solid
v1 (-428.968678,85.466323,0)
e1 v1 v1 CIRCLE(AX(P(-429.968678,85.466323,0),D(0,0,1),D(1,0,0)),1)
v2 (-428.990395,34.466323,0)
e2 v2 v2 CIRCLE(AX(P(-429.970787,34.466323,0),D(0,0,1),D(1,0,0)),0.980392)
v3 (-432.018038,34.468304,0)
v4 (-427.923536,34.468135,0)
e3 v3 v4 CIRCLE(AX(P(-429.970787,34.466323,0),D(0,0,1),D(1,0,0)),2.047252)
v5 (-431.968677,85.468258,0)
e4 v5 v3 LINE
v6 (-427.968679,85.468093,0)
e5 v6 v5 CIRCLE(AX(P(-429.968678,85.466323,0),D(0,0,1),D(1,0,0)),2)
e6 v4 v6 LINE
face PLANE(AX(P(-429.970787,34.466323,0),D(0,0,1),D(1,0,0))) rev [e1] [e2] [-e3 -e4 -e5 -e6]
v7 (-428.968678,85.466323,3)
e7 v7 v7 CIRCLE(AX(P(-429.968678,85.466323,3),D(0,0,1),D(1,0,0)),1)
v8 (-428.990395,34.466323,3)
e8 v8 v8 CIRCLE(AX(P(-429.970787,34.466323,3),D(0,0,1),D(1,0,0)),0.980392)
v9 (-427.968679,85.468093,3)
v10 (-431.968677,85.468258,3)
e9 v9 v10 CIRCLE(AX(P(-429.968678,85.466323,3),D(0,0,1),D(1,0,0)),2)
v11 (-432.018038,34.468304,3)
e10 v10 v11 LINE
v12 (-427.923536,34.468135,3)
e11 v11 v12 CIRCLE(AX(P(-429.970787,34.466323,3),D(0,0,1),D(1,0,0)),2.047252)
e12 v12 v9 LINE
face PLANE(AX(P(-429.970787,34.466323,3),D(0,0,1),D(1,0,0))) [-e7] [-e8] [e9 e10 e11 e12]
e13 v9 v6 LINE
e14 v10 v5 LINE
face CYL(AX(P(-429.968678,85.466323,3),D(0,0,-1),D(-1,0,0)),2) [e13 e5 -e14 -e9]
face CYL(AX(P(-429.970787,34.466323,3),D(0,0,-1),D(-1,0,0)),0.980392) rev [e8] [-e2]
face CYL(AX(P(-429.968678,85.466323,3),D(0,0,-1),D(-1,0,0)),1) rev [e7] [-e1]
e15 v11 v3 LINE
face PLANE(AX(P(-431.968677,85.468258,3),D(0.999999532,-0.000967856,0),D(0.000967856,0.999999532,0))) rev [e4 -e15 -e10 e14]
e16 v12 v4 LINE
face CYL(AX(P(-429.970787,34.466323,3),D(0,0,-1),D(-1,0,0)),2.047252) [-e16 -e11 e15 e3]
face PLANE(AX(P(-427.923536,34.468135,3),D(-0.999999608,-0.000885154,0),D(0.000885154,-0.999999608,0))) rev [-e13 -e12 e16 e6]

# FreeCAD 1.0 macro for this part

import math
import FreeCAD as App
import Part
import Sketcher
from FreeCAD import Vector

doc = App.newDocument("Part")
body = doc.addObject("PartDesign::Body", "Body")

sketch1 = body.newObject("Sketcher::SketchObject", "Sketch")
sketch1.AttachmentSupport = (doc.getObject("XY_Plane"), [""])
sketch1.MapMode = "FlatFace"
sketch1.addGeometry(Part.LineSegment(Vector(-427.923536, 34.468135, 0), Vector(-427.968679, 85.468093, 0)), False)
sketch1.addGeometry(Part.ArcOfCircle(Part.Circle(Vector(-429.968678, 85.466323, 0), Vector(0, 0, 1), 2), math.radians(0.050716), math.radians(179.944546)), False)
sketch1.addGeometry(Part.LineSegment(Vector(-431.968677, 85.468258, 0), Vector(-432.018038, 34.468304, 0)), False)
sketch1.addGeometry(Part.ArcOfCircle(Part.Circle(Vector(-429.970787, 34.466323, 0), Vector(0, 0, 1), 2.047252), math.radians(179.944546), math.radians(360.050716)), False)
sketch1.addGeometry(Part.Circle(Vector(-429.970787, 34.466323, 0), Vector(0, 0, 1), 0.980392), False)
sketch1.addGeometry(Part.Circle(Vector(-429.968678, 85.466323, 0), Vector(0, 0, 1), 1), False)
sketch1.addConstraint(Sketcher.Constraint("Tangent", 0, 2, 1, 1))
sketch1.addConstraint(Sketcher.Constraint("Tangent", 1, 2, 2, 1))
sketch1.addConstraint(Sketcher.Constraint("Tangent", 2, 2, 3, 1))
sketch1.addConstraint(Sketcher.Constraint("Tangent", 3, 2, 0, 1))
sketch1.addConstraint(Sketcher.Constraint("Coincident", 4, 3, 3, 3))
sketch1.addConstraint(Sketcher.Constraint("Coincident", 5, 3, 1, 3))
sketch1.addConstraint(Sketcher.Constraint("Diameter", 5, 2.0))
sketch1.addConstraint(Sketcher.Constraint("Radius", 1, 2.0))
sketch1.addConstraint(Sketcher.Constraint("DistanceY", 3, 3, 1, 3, 51.0))
sketch1.addConstraint(Sketcher.Constraint("Radius", 3, 2.047252))
sketch1.addConstraint(Sketcher.Constraint("Diameter", 4, 1.960785))
sketch1.addConstraint(Sketcher.Constraint("DistanceX", 1, 3, -1, 1, 429.968678))
sketch1.addConstraint(Sketcher.Constraint("DistanceY", -1, 1, 1, 2, 85.468258))
sketch1.addConstraint(Sketcher.Constraint("DistanceX", 2, 2, -1, 1, 432.018038))
pad1 = body.newObject("PartDesign::Pad", "Pad")
pad1.Profile = sketch1
pad1.Length = 3

doc.recompute()
